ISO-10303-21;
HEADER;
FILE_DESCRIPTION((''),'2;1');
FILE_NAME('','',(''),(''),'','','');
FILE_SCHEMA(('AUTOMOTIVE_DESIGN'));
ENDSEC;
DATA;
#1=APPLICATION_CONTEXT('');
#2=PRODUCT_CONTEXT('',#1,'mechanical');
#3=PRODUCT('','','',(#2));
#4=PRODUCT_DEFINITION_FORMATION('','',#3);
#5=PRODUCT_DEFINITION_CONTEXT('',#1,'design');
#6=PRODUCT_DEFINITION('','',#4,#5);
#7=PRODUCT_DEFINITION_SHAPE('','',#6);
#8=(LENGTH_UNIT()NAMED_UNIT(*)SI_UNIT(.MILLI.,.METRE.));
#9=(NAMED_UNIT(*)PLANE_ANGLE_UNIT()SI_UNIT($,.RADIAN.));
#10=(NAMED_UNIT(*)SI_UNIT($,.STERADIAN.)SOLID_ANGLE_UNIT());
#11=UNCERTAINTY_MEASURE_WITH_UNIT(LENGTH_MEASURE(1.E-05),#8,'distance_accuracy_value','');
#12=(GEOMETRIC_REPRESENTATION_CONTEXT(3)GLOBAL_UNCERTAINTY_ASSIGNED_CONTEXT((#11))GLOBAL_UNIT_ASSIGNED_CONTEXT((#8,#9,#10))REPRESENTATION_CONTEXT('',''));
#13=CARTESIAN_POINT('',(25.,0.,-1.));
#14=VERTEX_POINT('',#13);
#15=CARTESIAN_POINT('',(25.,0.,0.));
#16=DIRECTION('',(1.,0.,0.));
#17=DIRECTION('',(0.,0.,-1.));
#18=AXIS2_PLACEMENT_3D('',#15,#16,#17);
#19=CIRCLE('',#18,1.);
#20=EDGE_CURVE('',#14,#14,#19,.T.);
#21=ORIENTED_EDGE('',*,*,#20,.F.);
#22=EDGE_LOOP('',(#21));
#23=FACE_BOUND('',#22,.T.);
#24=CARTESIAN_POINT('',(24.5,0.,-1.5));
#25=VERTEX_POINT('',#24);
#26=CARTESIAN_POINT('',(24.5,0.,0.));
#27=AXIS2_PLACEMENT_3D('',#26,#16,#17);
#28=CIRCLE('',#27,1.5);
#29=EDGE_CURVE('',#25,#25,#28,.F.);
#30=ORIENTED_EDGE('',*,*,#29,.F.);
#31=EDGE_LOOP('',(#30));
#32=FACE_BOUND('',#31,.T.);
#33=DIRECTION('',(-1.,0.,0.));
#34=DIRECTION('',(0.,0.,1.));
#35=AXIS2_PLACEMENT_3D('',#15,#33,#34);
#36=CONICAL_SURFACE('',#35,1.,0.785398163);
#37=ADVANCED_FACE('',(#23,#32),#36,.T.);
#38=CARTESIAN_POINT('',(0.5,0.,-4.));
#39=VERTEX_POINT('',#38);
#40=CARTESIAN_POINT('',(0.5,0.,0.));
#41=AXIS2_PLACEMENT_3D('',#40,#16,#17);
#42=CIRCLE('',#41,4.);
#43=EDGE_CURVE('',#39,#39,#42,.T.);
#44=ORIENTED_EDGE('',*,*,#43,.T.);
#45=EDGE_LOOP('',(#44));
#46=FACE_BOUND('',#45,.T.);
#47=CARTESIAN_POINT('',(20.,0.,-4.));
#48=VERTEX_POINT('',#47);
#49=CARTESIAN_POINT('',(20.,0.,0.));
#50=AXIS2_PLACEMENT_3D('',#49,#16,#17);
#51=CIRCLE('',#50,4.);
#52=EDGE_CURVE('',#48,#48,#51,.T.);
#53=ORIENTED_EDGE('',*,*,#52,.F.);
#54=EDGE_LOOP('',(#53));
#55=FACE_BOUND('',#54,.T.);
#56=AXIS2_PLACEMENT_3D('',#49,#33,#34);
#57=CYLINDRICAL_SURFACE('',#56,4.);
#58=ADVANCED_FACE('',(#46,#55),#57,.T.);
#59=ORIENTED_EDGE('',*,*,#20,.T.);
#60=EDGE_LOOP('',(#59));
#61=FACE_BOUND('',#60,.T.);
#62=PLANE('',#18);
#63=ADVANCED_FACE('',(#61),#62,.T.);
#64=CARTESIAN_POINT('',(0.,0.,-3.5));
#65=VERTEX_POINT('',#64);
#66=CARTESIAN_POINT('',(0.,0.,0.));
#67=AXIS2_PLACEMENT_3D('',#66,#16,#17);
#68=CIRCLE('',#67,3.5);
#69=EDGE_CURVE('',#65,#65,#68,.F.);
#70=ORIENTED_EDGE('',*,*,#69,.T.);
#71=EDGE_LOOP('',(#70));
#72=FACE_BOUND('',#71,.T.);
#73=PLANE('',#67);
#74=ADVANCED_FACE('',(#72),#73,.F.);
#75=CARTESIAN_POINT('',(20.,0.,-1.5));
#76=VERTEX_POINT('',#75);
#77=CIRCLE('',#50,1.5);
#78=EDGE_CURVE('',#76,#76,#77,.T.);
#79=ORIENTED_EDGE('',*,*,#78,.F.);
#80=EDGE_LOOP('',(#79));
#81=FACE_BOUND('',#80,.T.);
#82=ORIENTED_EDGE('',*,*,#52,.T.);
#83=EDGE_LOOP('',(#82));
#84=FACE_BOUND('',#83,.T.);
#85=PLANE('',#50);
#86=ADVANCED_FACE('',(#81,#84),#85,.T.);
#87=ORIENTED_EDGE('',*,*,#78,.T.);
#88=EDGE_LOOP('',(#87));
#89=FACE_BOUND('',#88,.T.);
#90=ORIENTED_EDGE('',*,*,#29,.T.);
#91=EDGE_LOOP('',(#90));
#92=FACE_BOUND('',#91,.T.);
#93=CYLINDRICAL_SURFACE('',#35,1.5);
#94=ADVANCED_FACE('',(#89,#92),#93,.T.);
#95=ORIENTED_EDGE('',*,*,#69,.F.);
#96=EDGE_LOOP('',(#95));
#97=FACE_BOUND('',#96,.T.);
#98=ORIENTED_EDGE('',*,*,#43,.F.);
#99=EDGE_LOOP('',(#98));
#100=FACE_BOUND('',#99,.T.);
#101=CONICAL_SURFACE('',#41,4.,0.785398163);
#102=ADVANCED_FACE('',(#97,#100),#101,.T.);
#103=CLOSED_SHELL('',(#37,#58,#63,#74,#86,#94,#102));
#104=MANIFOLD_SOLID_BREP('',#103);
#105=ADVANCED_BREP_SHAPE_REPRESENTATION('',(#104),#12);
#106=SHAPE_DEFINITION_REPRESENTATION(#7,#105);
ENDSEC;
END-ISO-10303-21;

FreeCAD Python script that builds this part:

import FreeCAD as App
import Part
import Sketcher
from FreeCAD import Vector


def edges_at(feature, points):
    """Names of the edges that pass closest to the given points."""
    edges = feature.Shape.Edges
    near = lambda p: min(range(len(edges)), key=lambda i: edges[i].distToShape(Part.Vertex(*p))[0])
    return sorted({f"Edge{near(p) + 1}" for p in points})

doc = App.newDocument("Part")
body = doc.addObject("PartDesign::Body", "Body")

sketch1 = body.newObject("Sketcher::SketchObject", "Sketch")
sketch1.AttachmentSupport = (doc.getObject("YZ_Plane"), [""])
sketch1.MapMode = "FlatFace"
sketch1.addGeometry(Part.Circle(Vector(0, 0, 0), Vector(0, 0, 1), 4), False)
sketch1.addConstraint(Sketcher.Constraint("Coincident", 0, 3, -1, 1))
sketch1.addConstraint(Sketcher.Constraint("Diameter", 0, 8.0))
pad1 = body.newObject("PartDesign::Pad", "Pad")
pad1.Profile = sketch1
pad1.Length = 20

sketch2 = body.newObject("Sketcher::SketchObject", "Sketch001")
sketch2.AttachmentSupport = (doc.getObject("YZ_Plane"), [""])
sketch2.MapMode = "FlatFace"
sketch2.AttachmentOffset = App.Placement(Vector(0, 0, 20), App.Rotation())
sketch2.addGeometry(Part.Circle(Vector(0, 0, 0), Vector(0, 0, 1), 1.5), False)
sketch2.addConstraint(Sketcher.Constraint("Coincident", 0, 3, -1, 1))
sketch2.addConstraint(Sketcher.Constraint("Diameter", 0, 3.0))
pad2 = body.newObject("PartDesign::Pad", "Pad001")
pad2.Profile = sketch2
pad2.Length = 5
doc.recompute()

chamfer = body.newObject("PartDesign::Chamfer", "Chamfer")
chamfer.Base = (pad2, edges_at(pad2, [(0, 0, 4)]))
chamfer.Size = 0.5
doc.recompute()

chamfer2 = body.newObject("PartDesign::Chamfer", "Chamfer001")
chamfer2.Base = (chamfer, edges_at(chamfer, [(25, 0, 1.5)]))
chamfer2.Size = 0.5

doc.recompute()
